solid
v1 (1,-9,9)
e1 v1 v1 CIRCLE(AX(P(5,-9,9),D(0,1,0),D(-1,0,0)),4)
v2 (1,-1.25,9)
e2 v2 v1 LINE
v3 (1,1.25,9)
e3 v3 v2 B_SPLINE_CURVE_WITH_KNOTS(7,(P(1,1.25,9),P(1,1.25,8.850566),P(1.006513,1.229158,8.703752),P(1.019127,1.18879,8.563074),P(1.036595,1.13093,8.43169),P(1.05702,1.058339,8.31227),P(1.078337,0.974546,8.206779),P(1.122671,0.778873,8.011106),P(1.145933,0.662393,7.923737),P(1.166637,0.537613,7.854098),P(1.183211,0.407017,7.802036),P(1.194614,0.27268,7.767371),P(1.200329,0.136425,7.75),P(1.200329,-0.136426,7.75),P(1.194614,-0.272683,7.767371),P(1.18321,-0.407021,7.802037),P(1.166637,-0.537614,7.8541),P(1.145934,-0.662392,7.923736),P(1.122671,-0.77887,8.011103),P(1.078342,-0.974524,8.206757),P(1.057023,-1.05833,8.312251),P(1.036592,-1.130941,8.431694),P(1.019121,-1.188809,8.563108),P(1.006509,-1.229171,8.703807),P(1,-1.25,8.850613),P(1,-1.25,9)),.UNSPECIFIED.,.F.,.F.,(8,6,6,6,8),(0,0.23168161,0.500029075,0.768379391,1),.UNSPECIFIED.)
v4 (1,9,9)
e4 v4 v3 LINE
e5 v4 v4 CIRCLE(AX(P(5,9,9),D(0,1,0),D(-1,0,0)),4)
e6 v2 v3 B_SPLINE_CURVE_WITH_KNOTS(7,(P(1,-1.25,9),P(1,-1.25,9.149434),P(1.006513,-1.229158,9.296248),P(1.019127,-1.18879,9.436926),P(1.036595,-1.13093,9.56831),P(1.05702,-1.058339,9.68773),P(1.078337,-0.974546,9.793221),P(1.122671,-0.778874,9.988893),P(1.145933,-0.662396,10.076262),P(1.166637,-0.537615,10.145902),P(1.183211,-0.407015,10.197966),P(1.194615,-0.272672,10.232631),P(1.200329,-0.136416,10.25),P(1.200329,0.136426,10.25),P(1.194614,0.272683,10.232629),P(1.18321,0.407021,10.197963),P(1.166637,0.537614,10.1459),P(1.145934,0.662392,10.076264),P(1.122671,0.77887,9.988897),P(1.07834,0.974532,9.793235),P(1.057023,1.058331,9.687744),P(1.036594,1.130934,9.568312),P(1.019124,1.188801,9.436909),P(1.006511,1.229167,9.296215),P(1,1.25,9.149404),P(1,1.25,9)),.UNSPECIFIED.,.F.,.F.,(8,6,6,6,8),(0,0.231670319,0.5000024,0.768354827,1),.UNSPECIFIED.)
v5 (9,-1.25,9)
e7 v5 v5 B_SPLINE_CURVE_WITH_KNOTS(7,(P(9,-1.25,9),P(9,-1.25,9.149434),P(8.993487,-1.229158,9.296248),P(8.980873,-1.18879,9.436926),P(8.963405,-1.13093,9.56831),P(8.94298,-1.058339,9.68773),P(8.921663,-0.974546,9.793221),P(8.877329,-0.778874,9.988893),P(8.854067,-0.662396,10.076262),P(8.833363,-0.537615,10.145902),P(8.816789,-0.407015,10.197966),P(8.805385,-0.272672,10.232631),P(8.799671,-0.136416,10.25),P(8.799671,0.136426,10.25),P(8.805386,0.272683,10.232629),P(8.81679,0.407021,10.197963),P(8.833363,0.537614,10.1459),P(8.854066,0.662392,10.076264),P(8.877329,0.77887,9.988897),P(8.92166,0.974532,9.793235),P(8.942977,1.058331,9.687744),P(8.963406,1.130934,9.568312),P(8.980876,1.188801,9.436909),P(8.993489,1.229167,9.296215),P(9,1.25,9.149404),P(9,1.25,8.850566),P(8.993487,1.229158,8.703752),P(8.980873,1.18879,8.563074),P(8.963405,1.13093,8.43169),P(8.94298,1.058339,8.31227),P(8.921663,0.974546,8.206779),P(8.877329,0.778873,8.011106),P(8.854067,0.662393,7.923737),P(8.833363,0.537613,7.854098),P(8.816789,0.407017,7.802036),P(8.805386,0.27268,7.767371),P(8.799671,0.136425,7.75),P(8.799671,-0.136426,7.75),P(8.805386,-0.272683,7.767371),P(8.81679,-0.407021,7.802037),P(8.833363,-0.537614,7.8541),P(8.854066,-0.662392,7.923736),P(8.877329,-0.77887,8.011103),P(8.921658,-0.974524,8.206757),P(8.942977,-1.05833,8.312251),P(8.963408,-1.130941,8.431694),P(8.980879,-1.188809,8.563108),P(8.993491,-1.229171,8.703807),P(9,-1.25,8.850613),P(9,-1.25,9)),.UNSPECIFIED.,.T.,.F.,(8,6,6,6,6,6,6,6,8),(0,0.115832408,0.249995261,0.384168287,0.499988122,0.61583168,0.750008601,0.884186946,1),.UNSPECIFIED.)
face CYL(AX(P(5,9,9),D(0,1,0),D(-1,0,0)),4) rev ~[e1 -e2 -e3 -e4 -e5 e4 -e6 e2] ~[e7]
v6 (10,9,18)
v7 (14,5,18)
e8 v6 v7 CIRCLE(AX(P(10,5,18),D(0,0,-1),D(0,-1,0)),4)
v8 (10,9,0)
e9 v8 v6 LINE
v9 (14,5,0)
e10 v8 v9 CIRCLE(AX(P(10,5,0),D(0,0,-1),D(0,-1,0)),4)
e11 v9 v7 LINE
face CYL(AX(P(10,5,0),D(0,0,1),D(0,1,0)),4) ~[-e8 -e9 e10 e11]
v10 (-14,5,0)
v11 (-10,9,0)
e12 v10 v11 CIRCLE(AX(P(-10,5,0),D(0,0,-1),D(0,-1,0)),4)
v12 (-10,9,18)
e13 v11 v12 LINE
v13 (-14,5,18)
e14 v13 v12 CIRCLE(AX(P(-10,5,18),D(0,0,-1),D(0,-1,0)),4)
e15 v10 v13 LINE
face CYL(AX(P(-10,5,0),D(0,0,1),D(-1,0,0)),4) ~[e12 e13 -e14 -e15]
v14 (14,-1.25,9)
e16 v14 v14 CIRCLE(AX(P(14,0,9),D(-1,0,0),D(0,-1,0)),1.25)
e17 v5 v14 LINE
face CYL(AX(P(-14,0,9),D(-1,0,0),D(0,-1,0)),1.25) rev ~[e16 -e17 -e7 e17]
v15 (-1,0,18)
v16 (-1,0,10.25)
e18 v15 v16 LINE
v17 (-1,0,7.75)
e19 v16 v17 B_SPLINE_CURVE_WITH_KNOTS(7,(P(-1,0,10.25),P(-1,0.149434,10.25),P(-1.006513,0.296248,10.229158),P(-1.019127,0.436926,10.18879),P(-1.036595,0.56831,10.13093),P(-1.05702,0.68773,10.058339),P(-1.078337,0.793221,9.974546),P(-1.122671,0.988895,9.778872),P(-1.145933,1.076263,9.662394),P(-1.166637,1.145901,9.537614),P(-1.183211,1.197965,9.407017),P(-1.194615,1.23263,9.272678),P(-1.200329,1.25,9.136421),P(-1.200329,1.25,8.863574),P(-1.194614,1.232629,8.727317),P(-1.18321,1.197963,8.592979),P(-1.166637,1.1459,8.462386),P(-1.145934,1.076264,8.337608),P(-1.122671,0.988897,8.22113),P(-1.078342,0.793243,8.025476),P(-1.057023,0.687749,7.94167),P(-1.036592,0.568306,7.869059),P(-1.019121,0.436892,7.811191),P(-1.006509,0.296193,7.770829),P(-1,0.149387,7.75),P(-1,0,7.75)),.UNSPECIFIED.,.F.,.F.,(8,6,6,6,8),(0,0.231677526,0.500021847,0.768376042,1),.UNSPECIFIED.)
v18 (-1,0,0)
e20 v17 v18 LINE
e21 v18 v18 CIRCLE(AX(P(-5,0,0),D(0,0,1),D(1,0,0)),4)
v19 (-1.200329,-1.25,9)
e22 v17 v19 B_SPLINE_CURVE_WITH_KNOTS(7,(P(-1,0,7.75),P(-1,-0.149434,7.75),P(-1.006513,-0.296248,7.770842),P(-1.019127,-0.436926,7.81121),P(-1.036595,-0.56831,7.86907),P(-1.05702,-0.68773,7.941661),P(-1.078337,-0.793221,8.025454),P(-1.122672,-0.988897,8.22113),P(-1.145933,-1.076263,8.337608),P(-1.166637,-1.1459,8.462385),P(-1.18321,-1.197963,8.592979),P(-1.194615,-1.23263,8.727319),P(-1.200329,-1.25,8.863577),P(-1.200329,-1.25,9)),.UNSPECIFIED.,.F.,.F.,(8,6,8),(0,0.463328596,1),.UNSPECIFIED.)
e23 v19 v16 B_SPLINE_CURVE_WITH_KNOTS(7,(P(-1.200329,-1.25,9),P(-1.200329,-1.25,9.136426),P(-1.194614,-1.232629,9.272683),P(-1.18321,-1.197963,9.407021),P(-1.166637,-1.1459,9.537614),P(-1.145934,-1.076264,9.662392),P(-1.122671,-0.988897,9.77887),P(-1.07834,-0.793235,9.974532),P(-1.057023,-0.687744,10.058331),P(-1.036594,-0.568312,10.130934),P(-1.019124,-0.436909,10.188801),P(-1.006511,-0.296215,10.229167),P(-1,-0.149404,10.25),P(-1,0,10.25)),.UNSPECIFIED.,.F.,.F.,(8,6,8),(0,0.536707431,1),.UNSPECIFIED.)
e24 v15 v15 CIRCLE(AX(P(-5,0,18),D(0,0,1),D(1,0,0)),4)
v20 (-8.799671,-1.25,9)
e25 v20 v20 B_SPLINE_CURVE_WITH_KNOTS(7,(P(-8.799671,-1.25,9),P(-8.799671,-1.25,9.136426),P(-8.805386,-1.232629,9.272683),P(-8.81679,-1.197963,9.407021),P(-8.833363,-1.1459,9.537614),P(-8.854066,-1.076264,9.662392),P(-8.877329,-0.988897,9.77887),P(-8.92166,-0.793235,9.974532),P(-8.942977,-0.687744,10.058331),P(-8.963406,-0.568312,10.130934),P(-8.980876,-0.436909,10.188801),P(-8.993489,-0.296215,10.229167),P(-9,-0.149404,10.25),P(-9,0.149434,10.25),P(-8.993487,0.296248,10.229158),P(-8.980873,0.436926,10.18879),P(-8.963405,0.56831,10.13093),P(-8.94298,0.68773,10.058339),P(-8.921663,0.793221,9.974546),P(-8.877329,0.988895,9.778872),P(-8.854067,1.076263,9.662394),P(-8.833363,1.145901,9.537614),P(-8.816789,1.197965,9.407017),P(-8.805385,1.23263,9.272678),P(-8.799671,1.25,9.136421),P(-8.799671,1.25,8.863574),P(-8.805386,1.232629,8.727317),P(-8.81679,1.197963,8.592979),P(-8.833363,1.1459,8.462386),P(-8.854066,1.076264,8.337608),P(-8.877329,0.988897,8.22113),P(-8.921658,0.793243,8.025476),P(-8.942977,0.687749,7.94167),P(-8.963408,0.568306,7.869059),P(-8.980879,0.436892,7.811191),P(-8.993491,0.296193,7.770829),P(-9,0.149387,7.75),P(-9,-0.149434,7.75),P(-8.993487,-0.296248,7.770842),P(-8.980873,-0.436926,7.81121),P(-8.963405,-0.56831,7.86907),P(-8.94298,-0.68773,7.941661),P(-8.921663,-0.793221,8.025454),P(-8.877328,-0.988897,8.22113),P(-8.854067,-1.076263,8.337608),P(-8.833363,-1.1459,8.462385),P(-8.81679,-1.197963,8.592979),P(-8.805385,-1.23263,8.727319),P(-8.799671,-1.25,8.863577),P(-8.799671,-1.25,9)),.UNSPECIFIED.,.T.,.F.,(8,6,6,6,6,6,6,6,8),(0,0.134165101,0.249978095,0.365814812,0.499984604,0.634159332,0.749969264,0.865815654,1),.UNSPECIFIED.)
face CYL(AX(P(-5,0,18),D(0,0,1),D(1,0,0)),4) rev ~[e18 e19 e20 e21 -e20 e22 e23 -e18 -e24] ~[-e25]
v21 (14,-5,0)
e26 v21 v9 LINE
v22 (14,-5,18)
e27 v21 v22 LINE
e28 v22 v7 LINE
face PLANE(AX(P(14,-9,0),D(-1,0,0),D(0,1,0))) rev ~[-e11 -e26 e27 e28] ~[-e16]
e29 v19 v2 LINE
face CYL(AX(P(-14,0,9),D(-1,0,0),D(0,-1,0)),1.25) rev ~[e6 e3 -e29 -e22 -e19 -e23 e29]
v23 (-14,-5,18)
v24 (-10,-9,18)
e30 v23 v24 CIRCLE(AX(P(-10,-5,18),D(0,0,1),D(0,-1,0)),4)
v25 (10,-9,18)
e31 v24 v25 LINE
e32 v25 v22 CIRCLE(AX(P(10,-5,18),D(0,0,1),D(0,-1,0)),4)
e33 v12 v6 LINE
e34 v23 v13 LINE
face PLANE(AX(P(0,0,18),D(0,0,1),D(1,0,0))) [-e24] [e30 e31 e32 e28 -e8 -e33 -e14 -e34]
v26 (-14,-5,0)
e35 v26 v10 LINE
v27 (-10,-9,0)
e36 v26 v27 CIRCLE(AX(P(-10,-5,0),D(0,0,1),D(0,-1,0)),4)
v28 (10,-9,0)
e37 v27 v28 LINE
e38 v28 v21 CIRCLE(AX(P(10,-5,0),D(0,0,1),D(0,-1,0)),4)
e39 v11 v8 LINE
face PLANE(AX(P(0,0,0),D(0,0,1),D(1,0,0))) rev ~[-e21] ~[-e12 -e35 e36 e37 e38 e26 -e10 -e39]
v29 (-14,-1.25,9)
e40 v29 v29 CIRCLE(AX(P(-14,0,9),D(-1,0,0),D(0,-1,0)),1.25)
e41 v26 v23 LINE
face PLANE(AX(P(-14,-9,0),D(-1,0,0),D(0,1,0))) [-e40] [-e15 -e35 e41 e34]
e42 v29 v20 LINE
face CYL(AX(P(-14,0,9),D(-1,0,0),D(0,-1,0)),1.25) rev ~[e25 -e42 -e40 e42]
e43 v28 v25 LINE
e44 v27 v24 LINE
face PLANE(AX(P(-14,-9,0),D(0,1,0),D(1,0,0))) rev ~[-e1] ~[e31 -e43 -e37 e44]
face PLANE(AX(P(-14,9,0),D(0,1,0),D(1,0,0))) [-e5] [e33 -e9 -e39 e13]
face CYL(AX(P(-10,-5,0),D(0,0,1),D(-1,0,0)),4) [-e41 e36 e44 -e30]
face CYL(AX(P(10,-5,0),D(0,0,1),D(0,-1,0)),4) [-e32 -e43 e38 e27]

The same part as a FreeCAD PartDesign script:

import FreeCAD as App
import Part
import Sketcher
from FreeCAD import Vector
Q = App.Units.Quantity


def edges_at(feature, points):
    """Names of the edges that pass closest to the given points."""
    edges = feature.Shape.Edges
    near = lambda p: min(range(len(edges)), key=lambda i: edges[i].distToShape(Part.Vertex(*p))[0])
    return sorted({f"Edge{near(p) + 1}" for p in points})

doc = App.newDocument("Part")
body = doc.addObject("PartDesign::Body", "Body")

sketch1 = body.newObject("Sketcher::SketchObject", "Sketch")
sketch1.AttachmentSupport = (doc.getObject("XY_Plane"), [""])
sketch1.MapMode = "FlatFace"
sketch1.addGeometry(Part.LineSegment(Vector(-14, 9, 0), Vector(-14, -9, 0)), False)
sketch1.addGeometry(Part.LineSegment(Vector(-14, -9, 0), Vector(14, -9, 0)), False)
sketch1.addGeometry(Part.LineSegment(Vector(14, -9, 0), Vector(14, 9, 0)), False)
sketch1.addGeometry(Part.LineSegment(Vector(14, 9, 0), Vector(-14, 9, 0)), False)
sketch1.addConstraint(Sketcher.Constraint("Coincident", 0, 2, 1, 1))
sketch1.addConstraint(Sketcher.Constraint("Coincident", 1, 2, 2, 1))
sketch1.addConstraint(Sketcher.Constraint("Coincident", 2, 2, 3, 1))
sketch1.addConstraint(Sketcher.Constraint("Coincident", 3, 2, 0, 1))
sketch1.addConstraint(Sketcher.Constraint("Vertical", 0))
sketch1.addConstraint(Sketcher.Constraint("Horizontal", 1))
sketch1.addConstraint(Sketcher.Constraint("Vertical", 2))
sketch1.addConstraint(Sketcher.Constraint("Horizontal", 3))
sketch1.addConstraint(Sketcher.Constraint("Symmetric", 0, 2, 2, 2, -1, 1))
sketch1.addConstraint(Sketcher.Constraint("DistanceX", 1, 1, 1, 2, Q("28 mm")))
sketch1.addConstraint(Sketcher.Constraint("DistanceY", 0, 2, 0, 1, Q("18 mm")))
pad1 = body.newObject("PartDesign::Pad", "Pad")
pad1.Profile = sketch1
pad1.Length = 18

sketch2 = body.newObject("Sketcher::SketchObject", "Sketch001")
sketch2.AttachmentSupport = (doc.getObject("XY_Plane"), [""])
sketch2.MapMode = "FlatFace"
sketch2.AttachmentOffset = App.Placement(Vector(0, 0, 18), App.Rotation())
sketch2.addGeometry(Part.Circle(Vector(-5, 0, 0), Vector(0, 0, 1), 4), False)
sketch2.addConstraint(Sketcher.Constraint("PointOnObject", 0, 3, -1))
sketch2.addConstraint(Sketcher.Constraint("Diameter", 0, Q("8 mm")))
sketch2.addConstraint(Sketcher.Constraint("DistanceX", 0, 3, -1, 1, Q("5 mm")))
pocket1 = body.newObject("PartDesign::Pocket", "Pocket")
pocket1.Profile = sketch2
pocket1.Type = "ThroughAll"

sketch3 = body.newObject("Sketcher::SketchObject", "Sketch002")
sketch3.AttachmentSupport = (doc.getObject("XZ_Plane"), [""])
sketch3.MapMode = "FlatFace"
sketch3.AttachmentOffset = App.Placement(Vector(0, 0, -9), App.Rotation())
sketch3.addGeometry(Part.Circle(Vector(5, 9, 0), Vector(0, 0, 1), 4), False)
sketch3.addConstraint(Sketcher.Constraint("Diameter", 0, Q("8 mm")))
sketch3.addConstraint(Sketcher.Constraint("DistanceX", -1, 1, 0, 3, Q("5 mm")))
sketch3.addConstraint(Sketcher.Constraint("DistanceY", -1, 1, 0, 3, Q("9 mm")))
pocket2 = body.newObject("PartDesign::Pocket", "Pocket001")
pocket2.Profile = sketch3
pocket2.Type = "ThroughAll"
pocket2.Reversed = True

sketch4 = body.newObject("Sketcher::SketchObject", "Sketch003")
sketch4.AttachmentSupport = (doc.getObject("YZ_Plane"), [""])
sketch4.MapMode = "FlatFace"
sketch4.AttachmentOffset = App.Placement(Vector(0, 0, -14), App.Rotation())
sketch4.addGeometry(Part.Circle(Vector(0, 9, 0), Vector(0, 0, 1), 1.2), False)
sketch4.addConstraint(Sketcher.Constraint("PointOnObject", 0, 3, -2))
sketch4.addConstraint(Sketcher.Constraint("Diameter", 0, Q("2.5 mm")))
sketch4.addConstraint(Sketcher.Constraint("DistanceY", -1, 1, 0, 3, Q("9 mm")))
pocket3 = body.newObject("PartDesign::Pocket", "Pocket002")
pocket3.Profile = sketch4
pocket3.Type = "ThroughAll"
pocket3.Reversed = True
doc.recompute()

fillet = body.newObject("PartDesign::Fillet", "Fillet")
fillet.Base = (pocket3, edges_at(pocket3, [
    (-14, -9, 9),
    (-14, 9, 9),
    (14, -9, 9),
    (14, 9, 9),
]))
fillet.Radius = 4

doc.recompute()
